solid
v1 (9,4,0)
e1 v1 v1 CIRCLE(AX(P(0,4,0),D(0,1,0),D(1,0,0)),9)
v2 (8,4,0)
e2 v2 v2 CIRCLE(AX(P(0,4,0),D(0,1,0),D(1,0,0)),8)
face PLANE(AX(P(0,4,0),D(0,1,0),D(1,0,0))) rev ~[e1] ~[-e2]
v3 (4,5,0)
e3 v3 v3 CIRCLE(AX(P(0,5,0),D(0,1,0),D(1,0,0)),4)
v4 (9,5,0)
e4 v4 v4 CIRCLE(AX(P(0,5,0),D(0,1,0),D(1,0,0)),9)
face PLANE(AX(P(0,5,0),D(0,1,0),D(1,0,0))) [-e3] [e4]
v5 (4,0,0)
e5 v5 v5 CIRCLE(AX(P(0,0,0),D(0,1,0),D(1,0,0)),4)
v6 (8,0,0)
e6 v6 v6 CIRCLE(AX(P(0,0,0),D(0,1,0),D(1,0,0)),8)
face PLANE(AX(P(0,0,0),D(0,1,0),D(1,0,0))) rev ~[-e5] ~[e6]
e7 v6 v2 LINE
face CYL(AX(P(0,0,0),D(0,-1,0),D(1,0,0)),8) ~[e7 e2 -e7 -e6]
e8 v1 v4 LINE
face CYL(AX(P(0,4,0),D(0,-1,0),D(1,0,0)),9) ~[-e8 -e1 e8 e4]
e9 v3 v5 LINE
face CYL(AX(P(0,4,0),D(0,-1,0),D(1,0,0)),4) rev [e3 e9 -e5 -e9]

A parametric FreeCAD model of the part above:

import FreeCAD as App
import Part
import Sketcher

V = App.Vector

doc = App.newDocument("Part")
body = doc.addObject("PartDesign::Body", "Body")

sketch1 = doc.addObject("Sketcher::SketchObject", "Sketch")
body.addObject(sketch1)
sketch1.AttachmentSupport = (doc.XZ_Plane, [""])
sketch1.MapMode = "FlatFace"
sketch1.addGeometry(Part.Circle(V(0, 0, 0), V(0, 0, 1), 8), False)
sketch1.addGeometry(Part.Circle(V(0, 0, 0), V(0, 0, 1), 4), False)
sketch1.addConstraint(Sketcher.Constraint("Coincident", 0, 3, -1, 1))
sketch1.addConstraint(Sketcher.Constraint("Coincident", 1, 3, -1, 1))
sketch1.addConstraint(Sketcher.Constraint("Diameter", 0, 16.0))
sketch1.addConstraint(Sketcher.Constraint("Diameter", 1, 8.0))
pad1 = doc.addObject("PartDesign::Pad", "Pad")
body.addObject(pad1)
pad1.Profile = sketch1
pad1.Length = 4
pad1.Reversed = True

sketch2 = doc.addObject("Sketcher::SketchObject", "Sketch001")
body.addObject(sketch2)
sketch2.AttachmentSupport = (doc.XZ_Plane, [""])
sketch2.MapMode = "FlatFace"
sketch2.AttachmentOffset = App.Placement(V(0, 0, -4), App.Rotation())
sketch2.addGeometry(Part.Circle(V(0, 0, 0), V(0, 0, 1), 9), False)
sketch2.addGeometry(Part.Circle(V(0, 0, 0), V(0, 0, 1), 4), False)
sketch2.addConstraint(Sketcher.Constraint("Coincident", 0, 3, -1, 1))
sketch2.addConstraint(Sketcher.Constraint("Coincident", 1, 3, -1, 1))
sketch2.addConstraint(Sketcher.Constraint("Diameter", 0, 18.0))
sketch2.addConstraint(Sketcher.Constraint("Diameter", 1, 8.0))
pad2 = doc.addObject("PartDesign::Pad", "Pad001")
body.addObject(pad2)
pad2.Profile = sketch2
pad2.Length = 1
pad2.Reversed = True

doc.recompute()
